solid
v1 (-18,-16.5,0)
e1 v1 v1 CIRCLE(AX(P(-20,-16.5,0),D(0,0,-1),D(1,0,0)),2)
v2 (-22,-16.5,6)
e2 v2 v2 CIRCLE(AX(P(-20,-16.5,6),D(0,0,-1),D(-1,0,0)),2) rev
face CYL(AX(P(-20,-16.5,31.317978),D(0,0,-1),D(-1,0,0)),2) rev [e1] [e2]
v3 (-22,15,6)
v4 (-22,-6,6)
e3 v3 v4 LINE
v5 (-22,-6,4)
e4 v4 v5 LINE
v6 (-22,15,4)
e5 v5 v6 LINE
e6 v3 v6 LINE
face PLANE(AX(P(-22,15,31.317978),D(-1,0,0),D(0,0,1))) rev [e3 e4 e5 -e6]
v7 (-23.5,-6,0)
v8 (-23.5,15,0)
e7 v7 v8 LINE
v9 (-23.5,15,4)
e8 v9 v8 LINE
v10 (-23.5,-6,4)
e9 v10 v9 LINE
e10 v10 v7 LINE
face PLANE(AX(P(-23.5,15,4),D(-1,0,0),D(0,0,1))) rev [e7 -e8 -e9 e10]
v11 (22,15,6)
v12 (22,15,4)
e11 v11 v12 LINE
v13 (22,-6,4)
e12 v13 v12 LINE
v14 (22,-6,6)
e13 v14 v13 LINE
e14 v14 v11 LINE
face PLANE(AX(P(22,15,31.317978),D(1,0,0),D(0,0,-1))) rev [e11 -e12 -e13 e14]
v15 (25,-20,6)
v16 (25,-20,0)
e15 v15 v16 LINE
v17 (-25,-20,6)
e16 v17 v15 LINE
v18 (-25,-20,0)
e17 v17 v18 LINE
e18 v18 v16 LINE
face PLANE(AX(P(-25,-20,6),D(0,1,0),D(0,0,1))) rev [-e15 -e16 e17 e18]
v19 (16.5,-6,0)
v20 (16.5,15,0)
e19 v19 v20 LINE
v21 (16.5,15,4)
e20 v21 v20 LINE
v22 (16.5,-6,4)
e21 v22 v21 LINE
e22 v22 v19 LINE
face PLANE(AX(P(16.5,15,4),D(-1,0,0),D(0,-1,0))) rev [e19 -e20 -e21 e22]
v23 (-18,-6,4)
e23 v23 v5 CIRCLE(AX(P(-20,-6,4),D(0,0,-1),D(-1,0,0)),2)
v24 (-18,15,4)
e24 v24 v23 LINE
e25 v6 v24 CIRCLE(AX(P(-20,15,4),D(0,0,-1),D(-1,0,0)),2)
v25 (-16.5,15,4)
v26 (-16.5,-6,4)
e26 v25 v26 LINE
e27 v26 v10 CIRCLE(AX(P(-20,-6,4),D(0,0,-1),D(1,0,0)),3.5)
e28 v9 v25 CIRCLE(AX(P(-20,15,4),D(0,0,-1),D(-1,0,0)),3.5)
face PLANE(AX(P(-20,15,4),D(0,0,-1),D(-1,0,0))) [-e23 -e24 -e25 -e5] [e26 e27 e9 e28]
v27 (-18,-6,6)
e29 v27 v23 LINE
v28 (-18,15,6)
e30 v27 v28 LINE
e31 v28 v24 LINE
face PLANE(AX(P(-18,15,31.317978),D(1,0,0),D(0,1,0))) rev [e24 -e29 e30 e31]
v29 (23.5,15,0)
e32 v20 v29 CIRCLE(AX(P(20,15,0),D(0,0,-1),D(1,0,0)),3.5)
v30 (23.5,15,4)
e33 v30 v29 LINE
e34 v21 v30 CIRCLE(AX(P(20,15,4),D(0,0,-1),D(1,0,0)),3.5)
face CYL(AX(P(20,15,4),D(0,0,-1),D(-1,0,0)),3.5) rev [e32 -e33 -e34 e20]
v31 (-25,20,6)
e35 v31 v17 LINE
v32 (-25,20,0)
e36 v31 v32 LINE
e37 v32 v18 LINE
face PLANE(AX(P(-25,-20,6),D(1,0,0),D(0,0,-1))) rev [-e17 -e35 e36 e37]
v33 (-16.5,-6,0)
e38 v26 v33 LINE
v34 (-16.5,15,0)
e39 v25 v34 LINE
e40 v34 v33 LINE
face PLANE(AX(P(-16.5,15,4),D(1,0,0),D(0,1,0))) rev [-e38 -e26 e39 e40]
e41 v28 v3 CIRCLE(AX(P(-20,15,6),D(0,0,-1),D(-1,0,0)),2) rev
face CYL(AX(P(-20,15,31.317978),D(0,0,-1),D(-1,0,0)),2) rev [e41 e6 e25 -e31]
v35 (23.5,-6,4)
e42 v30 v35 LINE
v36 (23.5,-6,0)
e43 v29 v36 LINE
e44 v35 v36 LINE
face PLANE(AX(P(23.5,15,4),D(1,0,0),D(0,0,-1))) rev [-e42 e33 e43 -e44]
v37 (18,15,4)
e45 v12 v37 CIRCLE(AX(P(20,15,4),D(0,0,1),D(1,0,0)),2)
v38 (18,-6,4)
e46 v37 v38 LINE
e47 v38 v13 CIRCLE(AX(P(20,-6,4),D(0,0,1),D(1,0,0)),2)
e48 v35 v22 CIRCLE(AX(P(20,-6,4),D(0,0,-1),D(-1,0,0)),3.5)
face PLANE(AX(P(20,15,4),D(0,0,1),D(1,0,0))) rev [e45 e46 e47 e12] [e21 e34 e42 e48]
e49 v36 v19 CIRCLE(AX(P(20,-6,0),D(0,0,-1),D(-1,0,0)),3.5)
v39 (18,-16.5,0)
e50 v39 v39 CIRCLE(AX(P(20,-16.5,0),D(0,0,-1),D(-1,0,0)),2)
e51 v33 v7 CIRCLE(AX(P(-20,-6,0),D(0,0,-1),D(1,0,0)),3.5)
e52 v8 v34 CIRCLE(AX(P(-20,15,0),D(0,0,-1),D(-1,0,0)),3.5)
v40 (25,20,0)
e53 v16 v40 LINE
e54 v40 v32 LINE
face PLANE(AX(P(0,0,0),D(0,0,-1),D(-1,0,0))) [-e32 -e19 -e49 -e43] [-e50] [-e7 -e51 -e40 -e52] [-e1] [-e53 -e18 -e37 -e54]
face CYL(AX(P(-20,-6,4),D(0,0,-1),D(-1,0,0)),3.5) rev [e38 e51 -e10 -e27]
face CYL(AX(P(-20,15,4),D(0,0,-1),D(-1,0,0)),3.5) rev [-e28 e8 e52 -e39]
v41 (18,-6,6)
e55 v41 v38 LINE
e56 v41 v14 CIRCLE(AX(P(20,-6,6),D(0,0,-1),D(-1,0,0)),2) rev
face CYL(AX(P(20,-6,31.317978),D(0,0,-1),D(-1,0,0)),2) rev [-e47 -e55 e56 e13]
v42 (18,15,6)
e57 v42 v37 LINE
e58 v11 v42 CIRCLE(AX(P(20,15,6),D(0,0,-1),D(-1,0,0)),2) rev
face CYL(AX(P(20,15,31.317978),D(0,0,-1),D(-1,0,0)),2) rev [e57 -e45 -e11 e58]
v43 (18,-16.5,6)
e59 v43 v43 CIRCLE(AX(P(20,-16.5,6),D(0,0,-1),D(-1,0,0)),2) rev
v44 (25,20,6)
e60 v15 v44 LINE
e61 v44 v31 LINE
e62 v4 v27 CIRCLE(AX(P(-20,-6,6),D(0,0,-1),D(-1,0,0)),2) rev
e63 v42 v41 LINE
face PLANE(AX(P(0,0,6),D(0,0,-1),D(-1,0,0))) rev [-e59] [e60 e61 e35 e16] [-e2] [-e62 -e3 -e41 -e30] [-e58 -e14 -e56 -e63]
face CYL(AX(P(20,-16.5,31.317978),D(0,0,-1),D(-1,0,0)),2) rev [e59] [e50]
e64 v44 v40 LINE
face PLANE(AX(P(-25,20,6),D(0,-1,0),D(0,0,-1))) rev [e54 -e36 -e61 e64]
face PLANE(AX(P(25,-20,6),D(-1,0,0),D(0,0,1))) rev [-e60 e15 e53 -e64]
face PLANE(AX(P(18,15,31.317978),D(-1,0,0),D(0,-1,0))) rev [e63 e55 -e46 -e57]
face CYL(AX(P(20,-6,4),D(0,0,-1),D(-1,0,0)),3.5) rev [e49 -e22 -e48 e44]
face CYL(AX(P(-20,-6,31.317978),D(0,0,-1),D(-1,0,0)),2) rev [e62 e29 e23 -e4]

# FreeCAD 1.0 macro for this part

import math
import FreeCAD as App
import Part
import Sketcher

V = App.Vector
Q = App.Units.Quantity

doc = App.newDocument("Part")
body = doc.addObject("PartDesign::Body", "Body")

sketch1 = body.newObject("Sketcher::SketchObject", "Sketch")
sketch1.AttachmentSupport = (doc.getObject("XY_Plane"), [""])
sketch1.MapMode = "FlatFace"
sketch1.addGeometry(Part.LineSegment(V(-25, 20, 0), V(-25, -20, 0)), False)
sketch1.addGeometry(Part.LineSegment(V(-25, -20, 0), V(25, -20, 0)), False)
sketch1.addGeometry(Part.LineSegment(V(25, -20, 0), V(25, 20, 0)), False)
sketch1.addGeometry(Part.LineSegment(V(25, 20, 0), V(-25, 20, 0)), False)
sketch1.addConstraint(Sketcher.Constraint("Coincident", 0, 2, 1, 1))
sketch1.addConstraint(Sketcher.Constraint("Coincident", 1, 2, 2, 1))
sketch1.addConstraint(Sketcher.Constraint("Coincident", 2, 2, 3, 1))
sketch1.addConstraint(Sketcher.Constraint("Coincident", 3, 2, 0, 1))
sketch1.addConstraint(Sketcher.Constraint("Vertical", 0))
sketch1.addConstraint(Sketcher.Constraint("Horizontal", 1))
sketch1.addConstraint(Sketcher.Constraint("Vertical", 2))
sketch1.addConstraint(Sketcher.Constraint("Horizontal", 3))
sketch1.addConstraint(Sketcher.Constraint("Symmetric", 0, 2, 2, 2, -1, 1))
sketch1.addConstraint(Sketcher.Constraint("DistanceX", 1, 1, 1, 2, Q("50 mm")))
sketch1.addConstraint(Sketcher.Constraint("DistanceY", 0, 2, 0, 1, Q("40 mm")))
pad1 = body.newObject("PartDesign::Pad", "Pad")
pad1.Profile = sketch1
pad1.Length = 6

sketch2 = body.newObject("Sketcher::SketchObject", "Sketch001")
sketch2.AttachmentSupport = (doc.getObject("XY_Plane"), [""])
sketch2.MapMode = "FlatFace"
sketch2.addGeometry(Part.LineSegment(V(16.5, -6, 0), V(16.5, 15, 0)), False)
sketch2.addGeometry(Part.ArcOfCircle(Part.Circle(V(20, 15, 0), V(0, 0, 1), 3.5), math.radians(0), math.radians(180)), False)
sketch2.addGeometry(Part.LineSegment(V(23.5, 15, 0), V(23.5, -6, 0)), False)
sketch2.addGeometry(Part.ArcOfCircle(Part.Circle(V(20, -6, 0), V(0, 0, 1), 3.5), math.radians(180), math.radians(360)), False)
sketch2.addGeometry(Part.LineSegment(V(-23.5, -6, 0), V(-23.5, 15, 0)), False)
sketch2.addGeometry(Part.ArcOfCircle(Part.Circle(V(-20, 15, 0), V(0, 0, 1), 3.5), math.radians(0), math.radians(180)), False)
sketch2.addGeometry(Part.LineSegment(V(-16.5, 15, 0), V(-16.5, -6, 0)), False)
sketch2.addGeometry(Part.ArcOfCircle(Part.Circle(V(-20, -6, 0), V(0, 0, 1), 3.5), math.radians(180), math.radians(360)), False)
sketch2.addConstraint(Sketcher.Constraint("Tangent", 0, 2, 1, 2))
sketch2.addConstraint(Sketcher.Constraint("Tangent", 1, 1, 2, 1))
sketch2.addConstraint(Sketcher.Constraint("Tangent", 2, 2, 3, 2))
sketch2.addConstraint(Sketcher.Constraint("Tangent", 3, 1, 0, 1))
sketch2.addConstraint(Sketcher.Constraint("Tangent", 4, 2, 5, 2))
sketch2.addConstraint(Sketcher.Constraint("Tangent", 5, 1, 6, 1))
sketch2.addConstraint(Sketcher.Constraint("Tangent", 6, 2, 7, 2))
sketch2.addConstraint(Sketcher.Constraint("Tangent", 7, 1, 4, 1))
sketch2.addConstraint(Sketcher.Constraint("Vertical", 0))
sketch2.addConstraint(Sketcher.Constraint("Vertical", 2))
sketch2.addConstraint(Sketcher.Constraint("Vertical", 4))
sketch2.addConstraint(Sketcher.Constraint("Vertical", 6))
sketch2.addConstraint(Sketcher.Constraint("Equal", 3, 5))
sketch2.addConstraint(Sketcher.Constraint("Symmetric", 1, 3, 5, 3, -2))
sketch2.addConstraint(Sketcher.Constraint("Horizontal", 3, 3, 7, 3))
sketch2.addConstraint(Sketcher.Constraint("Radius", 1, Q("3.5 mm")))
sketch2.addConstraint(Sketcher.Constraint("DistanceY", 0, 1, 0, 2, Q("21 mm")))
sketch2.addConstraint(Sketcher.Constraint("DistanceX", -1, 1, 1, 3, Q("20 mm")))
sketch2.addConstraint(Sketcher.Constraint("DistanceY", -1, 1, 1, 3, Q("15 mm")))
pocket1 = body.newObject("PartDesign::Pocket", "Pocket")
pocket1.Profile = sketch2
pocket1.Length = 4
pocket1.Reversed = True

sketch3 = body.newObject("Sketcher::SketchObject", "Sketch002")
sketch3.AttachmentSupport = (doc.getObject("XY_Plane"), [""])
sketch3.MapMode = "FlatFace"
sketch3.addGeometry(Part.Circle(V(20, -16.5, 0), V(0, 0, 1), 2), False)
sketch3.addGeometry(Part.Circle(V(-20, -16.5, 0), V(0, 0, 1), 2), False)
sketch3.addGeometry(Part.LineSegment(V(22, 15, 0), V(22, -6, 0)), False)
sketch3.addGeometry(Part.ArcOfCircle(Part.Circle(V(20, -6, 0), V(0, 0, 1), 2), math.radians(180), math.radians(360)), False)
sketch3.addGeometry(Part.LineSegment(V(18, -6, 0), V(18, 15, 0)), False)
sketch3.addGeometry(Part.ArcOfCircle(Part.Circle(V(20, 15, 0), V(0, 0, 1), 2), math.radians(0), math.radians(180)), False)
sketch3.addGeometry(Part.LineSegment(V(-18, 15, 0), V(-18, -6, 0)), False)
sketch3.addGeometry(Part.ArcOfCircle(Part.Circle(V(-20, -6, 0), V(0, 0, 1), 2), math.radians(180), math.radians(360)), False)
sketch3.addGeometry(Part.LineSegment(V(-22, -6, 0), V(-22, 15, 0)), False)
sketch3.addGeometry(Part.ArcOfCircle(Part.Circle(V(-20, 15, 0), V(0, 0, 1), 2), math.radians(0), math.radians(180)), False)
sketch3.addConstraint(Sketcher.Constraint("Tangent", 2, 2, 3, 2))
sketch3.addConstraint(Sketcher.Constraint("Tangent", 3, 1, 4, 1))
sketch3.addConstraint(Sketcher.Constraint("Tangent", 4, 2, 5, 2))
sketch3.addConstraint(Sketcher.Constraint("Tangent", 5, 1, 2, 1))
sketch3.addConstraint(Sketcher.Constraint("Tangent", 6, 2, 7, 2))
sketch3.addConstraint(Sketcher.Constraint("Tangent", 7, 1, 8, 1))
sketch3.addConstraint(Sketcher.Constraint("Tangent", 8, 2, 9, 2))
sketch3.addConstraint(Sketcher.Constraint("Tangent", 9, 1, 6, 1))
sketch3.addConstraint(Sketcher.Constraint("Vertical", 2))
sketch3.addConstraint(Sketcher.Constraint("Vertical", 4))
sketch3.addConstraint(Sketcher.Constraint("Vertical", 6))
sketch3.addConstraint(Sketcher.Constraint("Vertical", 8))
sketch3.addConstraint(Sketcher.Constraint("Equal", 0, 1))
sketch3.addConstraint(Sketcher.Constraint("Equal", 1, 3))
sketch3.addConstraint(Sketcher.Constraint("Equal", 5, 7))
sketch3.addConstraint(Sketcher.Constraint("Symmetric", 0, 3, 1, 3, -2))
sketch3.addConstraint(Sketcher.Constraint("Symmetric", 3, 3, 7, 3, -2))
sketch3.addConstraint(Sketcher.Constraint("Horizontal", 5, 3, 9, 3))
sketch3.addConstraint(Sketcher.Constraint("Vertical", 0, 3, 3, 3))
sketch3.addConstraint(Sketcher.Constraint("Diameter", 0, Q("4 mm")))
sketch3.addConstraint(Sketcher.Constraint("DistanceY", 2, 2, 2, 1, Q("21 mm")))
sketch3.addConstraint(Sketcher.Constraint("DistanceX", -1, 1, 0, 3, Q("20 mm")))
sketch3.addConstraint(Sketcher.Constraint("DistanceY", 3, 3, -1, 1, Q("6 mm")))
sketch3.addConstraint(Sketcher.Constraint("DistanceY", 0, 3, -1, 1, Q("16.5 mm")))
pocket2 = body.newObject("PartDesign::Pocket", "Pocket001")
pocket2.Profile = sketch3
pocket2.Length = 6
pocket2.Reversed = True

doc.recompute()
